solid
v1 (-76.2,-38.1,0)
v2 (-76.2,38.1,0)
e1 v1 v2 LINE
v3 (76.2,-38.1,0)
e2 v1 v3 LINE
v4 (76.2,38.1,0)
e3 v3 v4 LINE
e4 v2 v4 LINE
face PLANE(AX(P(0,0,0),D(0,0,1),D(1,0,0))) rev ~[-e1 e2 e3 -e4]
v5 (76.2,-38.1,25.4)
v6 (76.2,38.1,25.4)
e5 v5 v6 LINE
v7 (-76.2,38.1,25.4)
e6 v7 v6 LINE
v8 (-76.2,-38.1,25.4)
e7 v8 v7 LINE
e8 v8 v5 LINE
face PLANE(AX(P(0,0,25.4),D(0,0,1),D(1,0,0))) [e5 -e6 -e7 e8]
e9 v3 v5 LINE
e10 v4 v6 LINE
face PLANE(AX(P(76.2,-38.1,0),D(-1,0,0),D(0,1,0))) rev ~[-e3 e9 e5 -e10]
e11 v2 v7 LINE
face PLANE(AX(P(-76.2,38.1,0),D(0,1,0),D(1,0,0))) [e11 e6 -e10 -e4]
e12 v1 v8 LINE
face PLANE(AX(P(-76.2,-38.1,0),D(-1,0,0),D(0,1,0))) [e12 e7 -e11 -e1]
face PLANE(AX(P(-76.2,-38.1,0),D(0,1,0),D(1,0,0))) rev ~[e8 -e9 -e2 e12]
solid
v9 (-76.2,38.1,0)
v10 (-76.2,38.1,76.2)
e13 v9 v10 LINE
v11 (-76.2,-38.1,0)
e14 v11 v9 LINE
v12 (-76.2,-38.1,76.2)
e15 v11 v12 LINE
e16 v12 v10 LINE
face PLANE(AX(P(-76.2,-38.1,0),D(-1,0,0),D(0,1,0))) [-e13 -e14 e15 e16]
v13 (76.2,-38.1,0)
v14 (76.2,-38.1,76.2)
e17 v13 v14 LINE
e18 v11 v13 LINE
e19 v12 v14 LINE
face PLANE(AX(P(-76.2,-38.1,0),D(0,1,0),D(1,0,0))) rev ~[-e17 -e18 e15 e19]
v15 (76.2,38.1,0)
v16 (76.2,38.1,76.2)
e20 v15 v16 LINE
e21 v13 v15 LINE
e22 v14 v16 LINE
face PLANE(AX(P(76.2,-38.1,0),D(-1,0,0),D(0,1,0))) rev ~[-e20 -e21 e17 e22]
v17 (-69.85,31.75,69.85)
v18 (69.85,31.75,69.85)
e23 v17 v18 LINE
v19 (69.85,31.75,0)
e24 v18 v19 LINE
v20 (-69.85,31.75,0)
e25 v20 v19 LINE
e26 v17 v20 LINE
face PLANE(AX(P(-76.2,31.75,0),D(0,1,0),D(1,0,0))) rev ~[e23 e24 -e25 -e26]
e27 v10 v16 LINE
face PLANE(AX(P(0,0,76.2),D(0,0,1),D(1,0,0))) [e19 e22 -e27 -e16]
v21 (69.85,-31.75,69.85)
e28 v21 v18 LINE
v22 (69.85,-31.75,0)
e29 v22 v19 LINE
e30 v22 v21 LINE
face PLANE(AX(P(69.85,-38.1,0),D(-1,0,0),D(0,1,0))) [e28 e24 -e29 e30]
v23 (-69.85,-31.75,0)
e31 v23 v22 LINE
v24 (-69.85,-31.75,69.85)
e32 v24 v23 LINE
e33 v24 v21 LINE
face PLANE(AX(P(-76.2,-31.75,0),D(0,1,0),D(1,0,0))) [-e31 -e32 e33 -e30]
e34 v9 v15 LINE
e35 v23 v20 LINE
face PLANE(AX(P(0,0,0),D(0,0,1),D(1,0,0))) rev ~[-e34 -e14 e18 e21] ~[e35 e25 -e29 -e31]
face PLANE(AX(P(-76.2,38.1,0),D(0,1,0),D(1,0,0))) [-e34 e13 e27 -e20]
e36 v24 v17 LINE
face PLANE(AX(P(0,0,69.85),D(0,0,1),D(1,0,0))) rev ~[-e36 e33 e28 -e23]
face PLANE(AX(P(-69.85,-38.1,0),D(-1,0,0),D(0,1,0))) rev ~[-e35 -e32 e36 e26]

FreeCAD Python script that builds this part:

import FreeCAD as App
import Part
import Sketcher
from FreeCAD import Vector
Q = App.Units.Quantity


def faces_at(feature, points):
    """Names of the faces that lie closest to the given points."""
    faces = feature.Shape.Faces
    near = lambda p: min(range(len(faces)), key=lambda i: faces[i].distToShape(Part.Vertex(*p))[0])
    return sorted({f"Face{near(p) + 1}" for p in points})

doc = App.newDocument("Part")
body = doc.addObject("PartDesign::Body", "Body")

# Sketch on XY plane
sketch1 = body.newObject("Sketcher::SketchObject", "Sketch")
sketch1.AttachmentSupport = (doc.getObject("XY_Plane"), [""])
sketch1.MapMode = "FlatFace"
sketch1.addGeometry(Part.LineSegment(Vector(-76, 38, 0), Vector(-76, -38, 0)), False)
sketch1.addGeometry(Part.LineSegment(Vector(-76, -38, 0), Vector(76, -38, 0)), False)
sketch1.addGeometry(Part.LineSegment(Vector(76, -38, 0), Vector(76, 38, 0)), False)
sketch1.addGeometry(Part.LineSegment(Vector(76, 38, 0), Vector(-76, 38, 0)), False)
sketch1.addConstraint(Sketcher.Constraint("Coincident", 0, 2, 1, 1))
sketch1.addConstraint(Sketcher.Constraint("Coincident", 1, 2, 2, 1))
sketch1.addConstraint(Sketcher.Constraint("Coincident", 2, 2, 3, 1))
sketch1.addConstraint(Sketcher.Constraint("Coincident", 3, 2, 0, 1))
sketch1.addConstraint(Sketcher.Constraint("Vertical", 0))
sketch1.addConstraint(Sketcher.Constraint("Horizontal", 1))
sketch1.addConstraint(Sketcher.Constraint("Vertical", 2))
sketch1.addConstraint(Sketcher.Constraint("Horizontal", 3))
sketch1.addConstraint(Sketcher.Constraint("Symmetric", 0, 2, 2, 2, -1, 1))
sketch1.addConstraint(Sketcher.Constraint("DistanceX", 1, 1, 1, 2, Q("6 in")))
sketch1.addConstraint(Sketcher.Constraint("DistanceY", 0, 2, 0, 1, Q("3 in")))
pad1 = body.newObject("PartDesign::Pad", "Pad")
pad1.Profile = sketch1
pad1.Length = Q("3 in")
doc.recompute()

thickness = body.newObject("PartDesign::Thickness", "Thickness")
thickness.Base = (pad1, faces_at(pad1, [(0, 0, 0)]))
thickness.Value = Q("0.25 in")
thickness.Reversed = True
thickness.Join = "Arc"
body2 = doc.addObject("PartDesign::Body", "Body001")

# Sketch on XY plane
sketch2 = body2.newObject("Sketcher::SketchObject", "Sketch001")
sketch2.AttachmentSupport = (doc.getObject("XY_Plane001"), [""])
sketch2.MapMode = "FlatFace"
sketch2.addGeometry(Part.LineSegment(Vector(-76, 38, 0), Vector(-76, -38, 0)), False)
sketch2.addGeometry(Part.LineSegment(Vector(-76, -38, 0), Vector(76, -38, 0)), False)
sketch2.addGeometry(Part.LineSegment(Vector(76, -38, 0), Vector(76, 38, 0)), False)
sketch2.addGeometry(Part.LineSegment(Vector(76, 38, 0), Vector(-76, 38, 0)), False)
sketch2.addConstraint(Sketcher.Constraint("Coincident", 0, 2, 1, 1))
sketch2.addConstraint(Sketcher.Constraint("Coincident", 1, 2, 2, 1))
sketch2.addConstraint(Sketcher.Constraint("Coincident", 2, 2, 3, 1))
sketch2.addConstraint(Sketcher.Constraint("Coincident", 3, 2, 0, 1))
sketch2.addConstraint(Sketcher.Constraint("Vertical", 0))
sketch2.addConstraint(Sketcher.Constraint("Horizontal", 1))
sketch2.addConstraint(Sketcher.Constraint("Vertical", 2))
sketch2.addConstraint(Sketcher.Constraint("Horizontal", 3))
sketch2.addConstraint(Sketcher.Constraint("Symmetric", 0, 2, 2, 2, -1, 1))
sketch2.addConstraint(Sketcher.Constraint("DistanceX", 1, 1, 1, 2, Q("6 in")))
sketch2.addConstraint(Sketcher.Constraint("DistanceY", 0, 2, 0, 1, Q("3 in")))
pad2 = body2.newObject("PartDesign::Pad", "Pad001")
pad2.Profile = sketch2
pad2.Length = Q("1 in")

doc.recompute()
